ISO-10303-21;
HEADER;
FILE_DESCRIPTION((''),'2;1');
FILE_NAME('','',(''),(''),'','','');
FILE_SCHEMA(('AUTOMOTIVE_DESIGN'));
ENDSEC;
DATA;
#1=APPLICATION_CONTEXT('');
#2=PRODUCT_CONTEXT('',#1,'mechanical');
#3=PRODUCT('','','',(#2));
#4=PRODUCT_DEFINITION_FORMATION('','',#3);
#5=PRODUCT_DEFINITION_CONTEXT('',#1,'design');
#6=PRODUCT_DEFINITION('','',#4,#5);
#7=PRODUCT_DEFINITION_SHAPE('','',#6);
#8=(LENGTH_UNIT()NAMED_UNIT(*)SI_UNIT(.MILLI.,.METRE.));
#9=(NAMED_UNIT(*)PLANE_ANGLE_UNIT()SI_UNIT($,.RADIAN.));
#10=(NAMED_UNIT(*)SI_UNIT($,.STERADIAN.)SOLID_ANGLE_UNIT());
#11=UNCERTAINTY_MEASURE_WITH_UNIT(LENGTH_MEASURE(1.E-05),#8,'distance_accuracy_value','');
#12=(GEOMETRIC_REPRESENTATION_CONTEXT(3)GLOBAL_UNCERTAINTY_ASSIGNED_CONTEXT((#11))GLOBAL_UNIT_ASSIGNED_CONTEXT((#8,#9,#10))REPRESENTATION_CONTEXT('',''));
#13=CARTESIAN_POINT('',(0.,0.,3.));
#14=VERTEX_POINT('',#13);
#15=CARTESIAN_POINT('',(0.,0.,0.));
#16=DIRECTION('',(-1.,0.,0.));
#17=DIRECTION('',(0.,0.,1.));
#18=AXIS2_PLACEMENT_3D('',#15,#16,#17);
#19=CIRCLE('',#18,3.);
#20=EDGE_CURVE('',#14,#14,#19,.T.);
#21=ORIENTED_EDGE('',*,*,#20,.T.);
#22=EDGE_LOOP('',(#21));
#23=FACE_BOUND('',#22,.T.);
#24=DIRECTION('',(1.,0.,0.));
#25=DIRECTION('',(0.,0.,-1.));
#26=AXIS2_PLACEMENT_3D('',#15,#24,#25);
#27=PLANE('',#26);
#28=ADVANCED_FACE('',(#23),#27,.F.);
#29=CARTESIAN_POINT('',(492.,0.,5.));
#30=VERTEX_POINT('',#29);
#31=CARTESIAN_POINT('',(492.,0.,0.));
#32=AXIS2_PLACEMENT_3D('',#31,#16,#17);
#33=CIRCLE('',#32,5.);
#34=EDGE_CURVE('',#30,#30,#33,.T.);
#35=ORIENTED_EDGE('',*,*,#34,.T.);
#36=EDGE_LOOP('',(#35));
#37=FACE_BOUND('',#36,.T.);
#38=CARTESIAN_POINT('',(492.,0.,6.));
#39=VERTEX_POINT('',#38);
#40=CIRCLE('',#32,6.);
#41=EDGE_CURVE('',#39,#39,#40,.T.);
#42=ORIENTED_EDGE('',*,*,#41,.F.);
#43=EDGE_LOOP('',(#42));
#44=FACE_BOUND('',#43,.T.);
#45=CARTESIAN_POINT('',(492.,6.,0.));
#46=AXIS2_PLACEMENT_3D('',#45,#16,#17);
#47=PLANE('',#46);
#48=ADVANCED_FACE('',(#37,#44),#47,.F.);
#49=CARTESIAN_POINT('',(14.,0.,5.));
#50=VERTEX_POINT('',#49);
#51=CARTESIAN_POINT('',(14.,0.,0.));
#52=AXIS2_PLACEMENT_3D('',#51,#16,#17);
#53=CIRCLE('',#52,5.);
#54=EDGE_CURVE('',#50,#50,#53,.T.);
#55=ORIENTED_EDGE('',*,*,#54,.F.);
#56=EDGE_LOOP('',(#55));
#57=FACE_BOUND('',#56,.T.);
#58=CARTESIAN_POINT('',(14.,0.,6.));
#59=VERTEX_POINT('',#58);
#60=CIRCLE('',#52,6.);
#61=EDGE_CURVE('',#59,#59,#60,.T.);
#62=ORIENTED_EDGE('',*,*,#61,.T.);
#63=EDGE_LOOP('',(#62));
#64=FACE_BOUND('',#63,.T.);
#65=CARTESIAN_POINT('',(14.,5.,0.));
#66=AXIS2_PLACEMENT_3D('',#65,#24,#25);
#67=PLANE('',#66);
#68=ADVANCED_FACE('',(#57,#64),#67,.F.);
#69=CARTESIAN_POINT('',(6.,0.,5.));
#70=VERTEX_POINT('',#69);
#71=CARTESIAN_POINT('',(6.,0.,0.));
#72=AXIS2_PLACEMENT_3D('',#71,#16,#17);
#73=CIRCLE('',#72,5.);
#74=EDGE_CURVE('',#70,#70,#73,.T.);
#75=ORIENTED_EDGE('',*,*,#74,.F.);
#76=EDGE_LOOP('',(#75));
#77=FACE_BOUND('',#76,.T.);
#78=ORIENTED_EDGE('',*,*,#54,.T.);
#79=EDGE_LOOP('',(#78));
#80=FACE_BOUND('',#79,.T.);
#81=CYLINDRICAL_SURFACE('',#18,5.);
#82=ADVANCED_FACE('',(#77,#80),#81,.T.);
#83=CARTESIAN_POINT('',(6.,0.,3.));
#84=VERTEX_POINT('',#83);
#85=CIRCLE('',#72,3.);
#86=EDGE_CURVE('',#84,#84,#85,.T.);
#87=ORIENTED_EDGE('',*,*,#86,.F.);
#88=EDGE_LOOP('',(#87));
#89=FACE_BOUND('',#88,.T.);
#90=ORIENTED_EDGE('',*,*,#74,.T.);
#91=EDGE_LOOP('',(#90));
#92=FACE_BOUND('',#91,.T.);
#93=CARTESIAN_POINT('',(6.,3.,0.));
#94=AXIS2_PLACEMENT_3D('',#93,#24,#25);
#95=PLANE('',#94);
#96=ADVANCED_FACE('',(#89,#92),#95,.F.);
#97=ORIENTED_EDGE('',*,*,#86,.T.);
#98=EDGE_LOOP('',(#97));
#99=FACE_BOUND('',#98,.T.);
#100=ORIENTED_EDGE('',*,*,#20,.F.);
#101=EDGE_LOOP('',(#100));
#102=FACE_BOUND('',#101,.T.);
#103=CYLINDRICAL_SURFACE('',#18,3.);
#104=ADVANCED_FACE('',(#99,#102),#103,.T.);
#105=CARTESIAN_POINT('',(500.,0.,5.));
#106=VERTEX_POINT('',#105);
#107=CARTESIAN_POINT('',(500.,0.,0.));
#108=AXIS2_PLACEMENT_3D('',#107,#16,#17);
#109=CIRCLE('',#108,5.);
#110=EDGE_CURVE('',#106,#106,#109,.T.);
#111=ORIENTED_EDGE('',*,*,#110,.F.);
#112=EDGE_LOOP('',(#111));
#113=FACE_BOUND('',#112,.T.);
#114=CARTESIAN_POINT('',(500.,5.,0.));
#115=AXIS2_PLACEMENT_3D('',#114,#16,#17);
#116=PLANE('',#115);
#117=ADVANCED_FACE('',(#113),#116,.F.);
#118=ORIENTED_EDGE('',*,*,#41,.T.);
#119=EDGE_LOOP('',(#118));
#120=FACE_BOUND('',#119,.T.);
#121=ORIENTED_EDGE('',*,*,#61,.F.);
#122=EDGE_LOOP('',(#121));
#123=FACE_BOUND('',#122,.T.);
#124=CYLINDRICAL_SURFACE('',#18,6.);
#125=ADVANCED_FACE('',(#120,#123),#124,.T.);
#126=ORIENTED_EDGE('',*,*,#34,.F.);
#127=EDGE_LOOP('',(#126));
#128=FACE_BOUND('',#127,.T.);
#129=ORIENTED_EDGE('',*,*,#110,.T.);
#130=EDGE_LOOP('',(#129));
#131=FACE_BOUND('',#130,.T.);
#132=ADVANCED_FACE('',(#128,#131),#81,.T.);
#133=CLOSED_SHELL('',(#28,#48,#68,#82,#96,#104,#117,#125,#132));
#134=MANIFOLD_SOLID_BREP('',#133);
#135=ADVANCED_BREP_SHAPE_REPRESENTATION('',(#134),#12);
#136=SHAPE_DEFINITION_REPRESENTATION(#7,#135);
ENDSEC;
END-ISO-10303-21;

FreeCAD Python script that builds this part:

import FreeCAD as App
import Part
import Sketcher

V = App.Vector


def add_polygon(sketch, points):
    """Adds a closed chain of lines whose ends are joined by coincident constraints."""
    first, n = sketch.GeometryCount, len(points)
    for a, b in zip(points, points[1:] + points[:1]):
        sketch.addGeometry(Part.LineSegment(App.Vector(*a, 0), App.Vector(*b, 0)), False)
    for i in range(n):
        sketch.addConstraint(Sketcher.Constraint("Coincident", first + i, 2, first + (i + 1) % n, 1))

doc = App.newDocument("Part")
body = doc.addObject("PartDesign::Body", "Body")

# Sketch on XY plane
sketch1 = body.newObject("Sketcher::SketchObject", "Sketch")
sketch1.AttachmentSupport = (doc.getObject("XY_Plane"), [""])
sketch1.MapMode = "FlatFace"
add_polygon(sketch1, [(0, 0), (500, 0), (500, 5), (492, 5), (492, 6), (14, 6), (14, 5), (6, 5), (6, 3), (0, 3)])  # lines 0-9
sketch1.addConstraint([
    Sketcher.Constraint("Horizontal", 0),
    Sketcher.Constraint("Vertical", 1),
    Sketcher.Constraint("Horizontal", 2),
    Sketcher.Constraint("Vertical", 3),
    Sketcher.Constraint("Horizontal", 4),
    Sketcher.Constraint("Vertical", 5),
    Sketcher.Constraint("Horizontal", 6),
    Sketcher.Constraint("Vertical", 7),
    Sketcher.Constraint("Horizontal", 8),
    Sketcher.Constraint("Vertical", 9),
    Sketcher.Constraint("Coincident", 9, 2, -1, 1),
    Sketcher.Constraint("Horizontal", 2, 2, 5, 2),
    Sketcher.Constraint("Equal", 2, 6),
    Sketcher.Constraint("DistanceX", 0, 1, 0, 2, 500.0),
    Sketcher.Constraint("DistanceX", 2, 2, 2, 1, 8.0),
    Sketcher.Constraint("DistanceX", 4, 2, 4, 1, 478.0),
    Sketcher.Constraint("DistanceY", 1, 1, 1, 2, 5.0),
    Sketcher.Constraint("DistanceY", 3, 1, 3, 2, 1.0),
    Sketcher.Constraint("DistanceY", 7, 2, 7, 1, 2.0),
])
revolution = body.newObject("PartDesign::Revolution", "Revolution")
revolution.Profile = sketch1
revolution.ReferenceAxis = (sketch1, ["H_Axis"])
revolution.Angle = 360

doc.recompute()
